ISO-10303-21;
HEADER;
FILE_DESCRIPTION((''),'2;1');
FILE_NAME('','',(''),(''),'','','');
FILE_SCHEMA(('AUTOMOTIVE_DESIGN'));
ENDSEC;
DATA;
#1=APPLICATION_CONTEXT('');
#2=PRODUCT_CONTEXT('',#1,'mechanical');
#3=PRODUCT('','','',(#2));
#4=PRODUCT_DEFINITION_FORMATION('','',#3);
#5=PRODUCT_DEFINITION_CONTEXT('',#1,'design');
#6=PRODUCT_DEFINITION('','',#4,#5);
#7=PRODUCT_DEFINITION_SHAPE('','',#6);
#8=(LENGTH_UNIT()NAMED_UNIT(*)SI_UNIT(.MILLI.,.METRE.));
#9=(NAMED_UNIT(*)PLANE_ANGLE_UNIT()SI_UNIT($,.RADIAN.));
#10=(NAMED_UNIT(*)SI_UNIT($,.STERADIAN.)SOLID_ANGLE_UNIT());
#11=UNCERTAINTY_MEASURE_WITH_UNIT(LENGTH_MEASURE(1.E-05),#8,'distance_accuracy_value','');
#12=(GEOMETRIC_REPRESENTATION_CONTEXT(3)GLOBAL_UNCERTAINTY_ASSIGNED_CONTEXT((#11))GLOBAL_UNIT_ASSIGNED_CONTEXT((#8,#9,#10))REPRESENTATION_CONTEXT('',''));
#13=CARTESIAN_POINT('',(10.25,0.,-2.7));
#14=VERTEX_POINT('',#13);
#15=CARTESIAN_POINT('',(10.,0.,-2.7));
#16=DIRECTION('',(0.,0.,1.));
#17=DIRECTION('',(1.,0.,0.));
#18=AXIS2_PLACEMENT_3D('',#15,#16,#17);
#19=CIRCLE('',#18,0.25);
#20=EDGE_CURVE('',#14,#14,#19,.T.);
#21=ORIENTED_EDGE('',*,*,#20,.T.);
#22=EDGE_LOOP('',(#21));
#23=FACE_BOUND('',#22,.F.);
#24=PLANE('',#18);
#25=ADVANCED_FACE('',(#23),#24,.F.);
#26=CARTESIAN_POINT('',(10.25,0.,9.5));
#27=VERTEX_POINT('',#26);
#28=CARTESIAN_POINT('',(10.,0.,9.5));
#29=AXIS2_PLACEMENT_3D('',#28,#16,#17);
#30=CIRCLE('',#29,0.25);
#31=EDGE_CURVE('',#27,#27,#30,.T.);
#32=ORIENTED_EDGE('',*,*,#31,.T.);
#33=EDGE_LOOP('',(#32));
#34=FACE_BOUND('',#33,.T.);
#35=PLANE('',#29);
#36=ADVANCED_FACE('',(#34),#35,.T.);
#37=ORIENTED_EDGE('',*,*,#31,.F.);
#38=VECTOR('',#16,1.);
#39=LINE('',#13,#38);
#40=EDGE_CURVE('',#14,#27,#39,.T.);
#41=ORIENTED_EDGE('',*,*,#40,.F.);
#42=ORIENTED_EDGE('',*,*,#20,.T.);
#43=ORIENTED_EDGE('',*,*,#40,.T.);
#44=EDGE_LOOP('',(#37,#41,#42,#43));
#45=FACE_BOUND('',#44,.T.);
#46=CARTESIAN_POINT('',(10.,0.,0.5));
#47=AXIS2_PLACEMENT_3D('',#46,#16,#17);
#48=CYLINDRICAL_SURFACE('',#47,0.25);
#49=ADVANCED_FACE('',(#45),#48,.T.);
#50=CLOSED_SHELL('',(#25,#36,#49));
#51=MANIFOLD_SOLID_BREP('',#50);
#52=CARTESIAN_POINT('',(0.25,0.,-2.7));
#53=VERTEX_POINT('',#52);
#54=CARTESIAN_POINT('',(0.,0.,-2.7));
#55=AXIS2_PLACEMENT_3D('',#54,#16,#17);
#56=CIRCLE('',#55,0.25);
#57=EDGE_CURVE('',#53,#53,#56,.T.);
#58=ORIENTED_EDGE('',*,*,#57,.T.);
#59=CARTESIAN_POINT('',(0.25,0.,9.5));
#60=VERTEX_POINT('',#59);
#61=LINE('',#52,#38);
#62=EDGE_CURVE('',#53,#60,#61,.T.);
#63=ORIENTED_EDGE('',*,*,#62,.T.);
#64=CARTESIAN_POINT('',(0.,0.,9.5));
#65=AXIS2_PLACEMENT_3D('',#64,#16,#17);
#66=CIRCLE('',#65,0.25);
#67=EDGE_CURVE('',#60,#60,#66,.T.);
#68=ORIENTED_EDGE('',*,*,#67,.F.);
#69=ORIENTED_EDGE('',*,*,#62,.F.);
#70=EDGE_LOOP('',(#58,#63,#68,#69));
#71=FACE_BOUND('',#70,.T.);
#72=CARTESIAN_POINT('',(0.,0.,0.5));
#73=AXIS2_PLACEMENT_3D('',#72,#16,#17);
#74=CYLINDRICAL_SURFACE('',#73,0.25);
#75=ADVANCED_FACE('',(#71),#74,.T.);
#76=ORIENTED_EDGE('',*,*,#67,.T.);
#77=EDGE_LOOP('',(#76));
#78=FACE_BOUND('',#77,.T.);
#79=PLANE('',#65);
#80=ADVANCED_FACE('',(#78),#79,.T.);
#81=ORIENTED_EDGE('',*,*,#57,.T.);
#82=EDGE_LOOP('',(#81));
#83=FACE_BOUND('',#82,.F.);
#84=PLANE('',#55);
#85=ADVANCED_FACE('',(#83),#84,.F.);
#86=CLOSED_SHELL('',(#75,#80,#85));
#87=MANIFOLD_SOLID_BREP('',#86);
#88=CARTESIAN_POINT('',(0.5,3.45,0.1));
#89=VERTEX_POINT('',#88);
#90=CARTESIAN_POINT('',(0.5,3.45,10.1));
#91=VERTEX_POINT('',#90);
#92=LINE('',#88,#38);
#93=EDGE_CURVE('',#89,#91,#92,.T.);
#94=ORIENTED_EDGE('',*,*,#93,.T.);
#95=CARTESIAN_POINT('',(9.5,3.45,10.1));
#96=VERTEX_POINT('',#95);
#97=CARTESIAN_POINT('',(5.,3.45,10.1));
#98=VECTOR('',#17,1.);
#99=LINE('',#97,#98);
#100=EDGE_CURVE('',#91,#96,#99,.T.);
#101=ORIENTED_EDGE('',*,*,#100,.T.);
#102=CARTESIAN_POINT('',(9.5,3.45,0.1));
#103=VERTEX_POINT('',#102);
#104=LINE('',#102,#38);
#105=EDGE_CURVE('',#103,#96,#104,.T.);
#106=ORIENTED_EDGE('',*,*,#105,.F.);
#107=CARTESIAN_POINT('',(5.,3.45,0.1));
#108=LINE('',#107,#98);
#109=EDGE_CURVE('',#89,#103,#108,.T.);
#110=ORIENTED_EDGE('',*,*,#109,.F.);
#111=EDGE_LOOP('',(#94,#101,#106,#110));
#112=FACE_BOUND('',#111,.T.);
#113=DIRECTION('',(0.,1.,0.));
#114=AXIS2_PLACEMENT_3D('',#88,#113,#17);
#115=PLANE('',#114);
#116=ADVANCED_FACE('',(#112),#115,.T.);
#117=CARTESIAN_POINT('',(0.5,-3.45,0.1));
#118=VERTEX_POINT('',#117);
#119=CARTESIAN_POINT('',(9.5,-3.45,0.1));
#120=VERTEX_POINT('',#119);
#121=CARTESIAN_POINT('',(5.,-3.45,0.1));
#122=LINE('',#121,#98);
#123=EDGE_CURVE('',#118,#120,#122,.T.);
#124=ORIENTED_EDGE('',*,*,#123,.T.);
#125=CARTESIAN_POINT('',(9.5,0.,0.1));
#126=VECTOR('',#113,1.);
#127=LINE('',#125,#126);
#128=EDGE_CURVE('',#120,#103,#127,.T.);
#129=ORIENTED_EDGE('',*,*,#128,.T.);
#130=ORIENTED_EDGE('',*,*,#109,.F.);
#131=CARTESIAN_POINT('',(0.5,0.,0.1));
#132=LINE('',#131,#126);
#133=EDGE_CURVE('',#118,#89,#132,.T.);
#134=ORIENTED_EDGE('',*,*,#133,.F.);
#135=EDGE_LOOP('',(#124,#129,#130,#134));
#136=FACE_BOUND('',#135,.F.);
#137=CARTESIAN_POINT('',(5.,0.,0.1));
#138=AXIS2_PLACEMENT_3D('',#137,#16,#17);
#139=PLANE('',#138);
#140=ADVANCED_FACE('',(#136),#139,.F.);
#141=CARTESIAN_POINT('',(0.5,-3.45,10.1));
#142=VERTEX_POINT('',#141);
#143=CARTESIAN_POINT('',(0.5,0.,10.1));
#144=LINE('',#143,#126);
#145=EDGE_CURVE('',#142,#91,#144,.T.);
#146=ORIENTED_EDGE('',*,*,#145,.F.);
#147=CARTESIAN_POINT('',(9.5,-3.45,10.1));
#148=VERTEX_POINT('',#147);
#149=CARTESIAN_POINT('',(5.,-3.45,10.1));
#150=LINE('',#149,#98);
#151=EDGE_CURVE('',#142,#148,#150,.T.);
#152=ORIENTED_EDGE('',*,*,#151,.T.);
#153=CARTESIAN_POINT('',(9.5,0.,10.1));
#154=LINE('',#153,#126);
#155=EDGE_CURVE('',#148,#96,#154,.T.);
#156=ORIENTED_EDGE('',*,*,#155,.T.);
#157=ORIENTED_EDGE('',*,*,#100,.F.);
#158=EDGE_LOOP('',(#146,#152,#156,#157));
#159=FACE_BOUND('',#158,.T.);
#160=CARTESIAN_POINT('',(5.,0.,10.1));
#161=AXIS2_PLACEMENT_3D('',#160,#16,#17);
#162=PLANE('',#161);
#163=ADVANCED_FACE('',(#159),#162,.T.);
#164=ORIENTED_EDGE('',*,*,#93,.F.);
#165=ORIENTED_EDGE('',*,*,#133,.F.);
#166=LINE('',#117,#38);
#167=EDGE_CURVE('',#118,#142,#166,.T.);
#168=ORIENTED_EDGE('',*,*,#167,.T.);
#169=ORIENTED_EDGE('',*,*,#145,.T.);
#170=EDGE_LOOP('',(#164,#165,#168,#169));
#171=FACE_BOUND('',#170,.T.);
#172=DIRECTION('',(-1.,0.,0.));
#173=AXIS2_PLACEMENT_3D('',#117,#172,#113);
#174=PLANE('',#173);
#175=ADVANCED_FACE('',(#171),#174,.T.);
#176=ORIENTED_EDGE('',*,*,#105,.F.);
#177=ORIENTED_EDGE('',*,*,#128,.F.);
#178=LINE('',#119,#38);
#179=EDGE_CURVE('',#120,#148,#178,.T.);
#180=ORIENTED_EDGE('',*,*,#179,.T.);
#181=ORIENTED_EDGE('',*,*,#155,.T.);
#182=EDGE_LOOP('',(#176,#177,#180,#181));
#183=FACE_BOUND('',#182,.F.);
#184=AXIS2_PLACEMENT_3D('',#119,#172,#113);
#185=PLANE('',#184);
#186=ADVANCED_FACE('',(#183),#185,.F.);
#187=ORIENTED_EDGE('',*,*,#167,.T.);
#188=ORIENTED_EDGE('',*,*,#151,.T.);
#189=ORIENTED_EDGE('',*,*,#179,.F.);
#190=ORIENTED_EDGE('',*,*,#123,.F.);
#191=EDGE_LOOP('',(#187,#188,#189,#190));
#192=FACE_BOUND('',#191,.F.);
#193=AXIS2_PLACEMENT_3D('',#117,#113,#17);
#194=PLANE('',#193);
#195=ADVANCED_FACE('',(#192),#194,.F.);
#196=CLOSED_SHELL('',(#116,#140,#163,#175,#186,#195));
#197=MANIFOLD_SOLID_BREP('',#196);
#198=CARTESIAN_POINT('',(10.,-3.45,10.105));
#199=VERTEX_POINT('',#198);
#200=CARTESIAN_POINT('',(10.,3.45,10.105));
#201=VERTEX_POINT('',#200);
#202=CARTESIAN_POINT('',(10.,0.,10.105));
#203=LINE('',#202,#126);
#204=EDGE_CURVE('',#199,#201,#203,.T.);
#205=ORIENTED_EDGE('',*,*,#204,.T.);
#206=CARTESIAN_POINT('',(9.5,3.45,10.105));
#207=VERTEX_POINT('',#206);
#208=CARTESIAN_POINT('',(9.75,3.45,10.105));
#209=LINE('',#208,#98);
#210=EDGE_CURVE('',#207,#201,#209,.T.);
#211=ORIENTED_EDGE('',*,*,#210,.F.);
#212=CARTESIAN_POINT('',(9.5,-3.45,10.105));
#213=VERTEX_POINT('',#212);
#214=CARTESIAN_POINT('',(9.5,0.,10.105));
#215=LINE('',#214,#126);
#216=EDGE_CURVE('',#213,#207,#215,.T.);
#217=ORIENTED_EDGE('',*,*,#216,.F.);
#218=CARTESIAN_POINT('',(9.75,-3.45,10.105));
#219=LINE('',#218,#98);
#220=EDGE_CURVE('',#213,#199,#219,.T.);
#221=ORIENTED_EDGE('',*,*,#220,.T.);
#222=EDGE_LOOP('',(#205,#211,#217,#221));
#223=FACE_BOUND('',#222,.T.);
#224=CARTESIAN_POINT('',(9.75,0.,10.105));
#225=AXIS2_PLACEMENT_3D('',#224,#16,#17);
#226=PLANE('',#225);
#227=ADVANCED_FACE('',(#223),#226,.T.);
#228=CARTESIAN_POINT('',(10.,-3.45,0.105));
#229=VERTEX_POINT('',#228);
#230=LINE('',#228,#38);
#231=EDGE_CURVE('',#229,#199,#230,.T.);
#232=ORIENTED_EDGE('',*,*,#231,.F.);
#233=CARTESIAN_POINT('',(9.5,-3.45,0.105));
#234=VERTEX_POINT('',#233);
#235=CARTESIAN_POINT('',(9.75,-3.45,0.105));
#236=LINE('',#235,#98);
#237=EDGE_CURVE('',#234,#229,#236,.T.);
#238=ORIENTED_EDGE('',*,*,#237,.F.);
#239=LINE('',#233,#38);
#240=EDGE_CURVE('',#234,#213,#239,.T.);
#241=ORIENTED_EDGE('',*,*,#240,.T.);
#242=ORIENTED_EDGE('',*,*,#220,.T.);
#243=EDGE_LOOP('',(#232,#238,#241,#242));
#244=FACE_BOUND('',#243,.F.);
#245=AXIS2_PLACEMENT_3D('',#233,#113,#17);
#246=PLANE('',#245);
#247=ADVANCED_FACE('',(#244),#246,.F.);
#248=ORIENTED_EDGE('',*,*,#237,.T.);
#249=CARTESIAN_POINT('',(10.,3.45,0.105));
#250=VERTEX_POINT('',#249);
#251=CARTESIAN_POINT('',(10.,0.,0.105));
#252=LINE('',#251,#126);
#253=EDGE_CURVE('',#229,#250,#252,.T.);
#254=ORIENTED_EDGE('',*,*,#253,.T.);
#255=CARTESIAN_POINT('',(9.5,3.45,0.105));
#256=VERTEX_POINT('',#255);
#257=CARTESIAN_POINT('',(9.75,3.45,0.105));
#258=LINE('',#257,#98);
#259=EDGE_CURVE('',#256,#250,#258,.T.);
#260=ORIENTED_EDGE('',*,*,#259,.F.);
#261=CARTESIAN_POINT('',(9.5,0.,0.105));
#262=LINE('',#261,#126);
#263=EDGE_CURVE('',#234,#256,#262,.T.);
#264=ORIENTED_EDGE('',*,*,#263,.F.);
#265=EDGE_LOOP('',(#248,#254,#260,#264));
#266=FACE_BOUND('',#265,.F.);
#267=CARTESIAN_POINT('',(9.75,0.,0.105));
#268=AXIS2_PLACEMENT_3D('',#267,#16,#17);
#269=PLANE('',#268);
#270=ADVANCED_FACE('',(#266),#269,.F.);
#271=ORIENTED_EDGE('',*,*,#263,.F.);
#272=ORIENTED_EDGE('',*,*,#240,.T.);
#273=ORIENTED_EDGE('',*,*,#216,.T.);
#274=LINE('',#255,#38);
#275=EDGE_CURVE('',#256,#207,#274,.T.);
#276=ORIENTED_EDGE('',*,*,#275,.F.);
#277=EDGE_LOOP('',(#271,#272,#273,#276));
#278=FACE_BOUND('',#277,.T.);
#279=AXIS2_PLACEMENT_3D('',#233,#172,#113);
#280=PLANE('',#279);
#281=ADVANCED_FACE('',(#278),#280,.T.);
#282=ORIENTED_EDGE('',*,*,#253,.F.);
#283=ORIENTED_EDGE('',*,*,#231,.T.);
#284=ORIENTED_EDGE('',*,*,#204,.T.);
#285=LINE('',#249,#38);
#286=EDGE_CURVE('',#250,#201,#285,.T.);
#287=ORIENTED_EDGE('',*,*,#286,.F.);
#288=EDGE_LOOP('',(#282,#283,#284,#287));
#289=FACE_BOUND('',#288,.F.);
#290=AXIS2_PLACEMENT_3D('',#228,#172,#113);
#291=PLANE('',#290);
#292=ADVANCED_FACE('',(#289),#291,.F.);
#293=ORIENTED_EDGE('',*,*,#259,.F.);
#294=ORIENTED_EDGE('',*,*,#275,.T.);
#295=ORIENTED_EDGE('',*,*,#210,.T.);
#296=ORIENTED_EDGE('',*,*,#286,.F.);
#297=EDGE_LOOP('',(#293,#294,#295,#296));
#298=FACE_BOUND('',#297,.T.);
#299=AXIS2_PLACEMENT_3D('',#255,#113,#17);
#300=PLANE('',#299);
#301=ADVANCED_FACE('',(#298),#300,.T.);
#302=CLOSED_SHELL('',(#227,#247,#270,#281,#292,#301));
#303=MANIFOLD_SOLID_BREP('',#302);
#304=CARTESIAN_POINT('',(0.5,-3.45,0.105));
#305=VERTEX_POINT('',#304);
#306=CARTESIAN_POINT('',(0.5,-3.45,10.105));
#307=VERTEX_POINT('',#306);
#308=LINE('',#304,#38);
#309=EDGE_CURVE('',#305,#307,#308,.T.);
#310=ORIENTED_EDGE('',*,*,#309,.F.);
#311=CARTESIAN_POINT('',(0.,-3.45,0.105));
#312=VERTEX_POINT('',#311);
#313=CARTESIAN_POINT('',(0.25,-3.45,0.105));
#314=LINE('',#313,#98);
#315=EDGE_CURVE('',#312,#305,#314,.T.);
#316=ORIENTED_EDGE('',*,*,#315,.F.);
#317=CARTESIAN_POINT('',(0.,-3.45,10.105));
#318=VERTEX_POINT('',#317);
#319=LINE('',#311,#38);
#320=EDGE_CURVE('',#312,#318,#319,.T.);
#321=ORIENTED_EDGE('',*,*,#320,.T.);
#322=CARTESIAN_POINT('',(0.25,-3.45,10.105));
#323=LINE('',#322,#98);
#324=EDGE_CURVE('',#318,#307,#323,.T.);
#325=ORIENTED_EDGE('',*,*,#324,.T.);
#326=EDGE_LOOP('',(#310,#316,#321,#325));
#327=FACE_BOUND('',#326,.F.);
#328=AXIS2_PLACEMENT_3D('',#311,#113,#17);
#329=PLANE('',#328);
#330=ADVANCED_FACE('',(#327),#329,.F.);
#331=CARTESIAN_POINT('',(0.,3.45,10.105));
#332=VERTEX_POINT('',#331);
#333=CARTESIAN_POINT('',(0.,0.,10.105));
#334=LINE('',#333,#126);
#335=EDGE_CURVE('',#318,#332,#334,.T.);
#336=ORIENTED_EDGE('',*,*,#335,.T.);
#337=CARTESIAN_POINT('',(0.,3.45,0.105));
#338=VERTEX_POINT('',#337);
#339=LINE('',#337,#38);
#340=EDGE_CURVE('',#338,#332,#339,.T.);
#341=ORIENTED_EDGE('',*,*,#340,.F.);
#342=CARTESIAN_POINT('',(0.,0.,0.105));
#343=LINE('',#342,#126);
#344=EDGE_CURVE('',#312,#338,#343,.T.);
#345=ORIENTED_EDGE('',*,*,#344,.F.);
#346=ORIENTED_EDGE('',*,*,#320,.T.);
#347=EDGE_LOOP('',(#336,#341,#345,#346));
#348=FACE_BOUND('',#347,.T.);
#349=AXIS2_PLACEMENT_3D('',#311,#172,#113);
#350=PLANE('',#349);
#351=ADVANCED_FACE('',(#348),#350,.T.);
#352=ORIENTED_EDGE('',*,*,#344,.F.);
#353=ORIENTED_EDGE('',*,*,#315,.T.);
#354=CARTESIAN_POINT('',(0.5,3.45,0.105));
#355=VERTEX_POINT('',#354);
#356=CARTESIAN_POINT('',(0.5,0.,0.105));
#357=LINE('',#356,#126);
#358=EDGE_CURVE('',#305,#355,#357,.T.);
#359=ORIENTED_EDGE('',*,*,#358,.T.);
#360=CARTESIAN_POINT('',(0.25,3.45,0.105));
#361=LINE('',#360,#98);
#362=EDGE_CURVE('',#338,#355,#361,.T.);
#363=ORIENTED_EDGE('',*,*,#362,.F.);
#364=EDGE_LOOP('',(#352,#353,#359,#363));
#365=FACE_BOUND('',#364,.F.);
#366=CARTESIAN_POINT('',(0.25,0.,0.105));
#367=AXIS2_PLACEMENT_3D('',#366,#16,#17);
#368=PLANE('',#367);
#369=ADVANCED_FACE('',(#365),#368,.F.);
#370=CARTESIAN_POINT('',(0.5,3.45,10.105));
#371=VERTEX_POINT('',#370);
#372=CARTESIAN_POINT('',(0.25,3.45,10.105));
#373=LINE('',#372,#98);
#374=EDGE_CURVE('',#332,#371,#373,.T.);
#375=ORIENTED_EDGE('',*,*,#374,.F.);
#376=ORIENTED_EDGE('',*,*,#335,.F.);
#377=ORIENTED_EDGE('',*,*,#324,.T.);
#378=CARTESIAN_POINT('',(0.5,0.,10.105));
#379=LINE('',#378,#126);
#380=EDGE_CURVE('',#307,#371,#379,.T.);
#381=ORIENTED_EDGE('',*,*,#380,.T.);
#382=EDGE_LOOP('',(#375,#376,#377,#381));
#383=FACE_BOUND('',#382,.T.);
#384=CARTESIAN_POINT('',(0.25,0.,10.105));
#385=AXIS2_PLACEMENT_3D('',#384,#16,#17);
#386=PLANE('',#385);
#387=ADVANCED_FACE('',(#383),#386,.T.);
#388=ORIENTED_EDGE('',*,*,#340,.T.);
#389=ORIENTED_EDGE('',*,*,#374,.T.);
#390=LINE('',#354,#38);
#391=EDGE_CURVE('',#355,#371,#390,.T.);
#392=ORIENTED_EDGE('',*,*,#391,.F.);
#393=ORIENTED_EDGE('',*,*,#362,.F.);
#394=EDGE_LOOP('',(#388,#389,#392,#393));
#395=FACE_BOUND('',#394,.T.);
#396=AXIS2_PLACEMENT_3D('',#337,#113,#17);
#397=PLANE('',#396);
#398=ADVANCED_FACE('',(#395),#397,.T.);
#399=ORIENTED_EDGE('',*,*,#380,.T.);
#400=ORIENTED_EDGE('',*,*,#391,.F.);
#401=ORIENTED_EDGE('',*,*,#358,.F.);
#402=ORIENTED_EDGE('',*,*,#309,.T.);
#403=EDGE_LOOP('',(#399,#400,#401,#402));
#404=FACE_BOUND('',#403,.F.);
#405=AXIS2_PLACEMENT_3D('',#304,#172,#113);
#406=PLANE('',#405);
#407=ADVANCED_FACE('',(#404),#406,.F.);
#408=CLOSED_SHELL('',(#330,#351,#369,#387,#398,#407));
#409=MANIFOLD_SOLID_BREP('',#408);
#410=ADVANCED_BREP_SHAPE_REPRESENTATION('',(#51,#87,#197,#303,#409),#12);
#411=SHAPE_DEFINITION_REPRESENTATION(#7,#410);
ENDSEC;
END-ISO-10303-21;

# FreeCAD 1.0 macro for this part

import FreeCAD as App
import Part
import Sketcher

V = App.Vector


def add_polygon(sketch, points):
    """Adds a closed chain of lines whose ends are joined by coincident constraints."""
    first, n = sketch.GeometryCount, len(points)
    for a, b in zip(points, points[1:] + points[:1]):
        sketch.addGeometry(Part.LineSegment(App.Vector(*a, 0), App.Vector(*b, 0)), False)
    for i in range(n):
        sketch.addConstraint(Sketcher.Constraint("Coincident", first + i, 2, first + (i + 1) % n, 1))

doc = App.newDocument("Part")
body = doc.addObject("PartDesign::Body", "Body")

sketch1 = doc.addObject("Sketcher::SketchObject", "Sketch")
body.addObject(sketch1)
sketch1.AttachmentSupport = (doc.XY_Plane, [""])
sketch1.MapMode = "FlatFace"
sketch1.AttachmentOffset = App.Placement(V(0, 0, 0.1), App.Rotation())
add_polygon(sketch1, [(0, 3), (0, -3), (10, -3), (10, 3)])
sketch1.addConstraint([
    Sketcher.Constraint("Vertical", 0),
    Sketcher.Constraint("Horizontal", 1),
    Sketcher.Constraint("Vertical", 2),
    Sketcher.Constraint("Horizontal", 3),
    Sketcher.Constraint("DistanceX", 1, 1, 1, 2, 9.0),
    Sketcher.Constraint("DistanceY", 0, 2, 0, 1, 6.9),
    Sketcher.Constraint("DistanceX", -1, 1, 0, 2, 0.5),
    Sketcher.Constraint("DistanceY", 0, 2, -1, 1, 3.45),
])
pad1 = doc.addObject("PartDesign::Pad", "Pad")
body.addObject(pad1)
pad1.Profile = sketch1
pad1.Length = 10
body2 = doc.addObject("PartDesign::Body", "Body001")
body2.AllowCompound = True

sketch2 = doc.addObject("Sketcher::SketchObject", "Sketch001")
body2.addObject(sketch2)
sketch2.AttachmentSupport = (doc.getObject("XY_Plane001"), [""])
sketch2.MapMode = "FlatFace"
sketch2.AttachmentOffset = App.Placement(V(0, 0, 0.5), App.Rotation())
sketch2.addGeometry([
    Part.Circle(V(0, 0, 0), V(0, 0, 1), 0.25),
    Part.Circle(V(10, 0, 0), V(0, 0, 1), 0.25),
], False)
sketch2.addConstraint([
    Sketcher.Constraint("Coincident", 0, 3, -1, 1),
    Sketcher.Constraint("Equal", 0, 1),
    Sketcher.Constraint("PointOnObject", 1, 3, -1),
    Sketcher.Constraint("Diameter", 0, 0.5),
    Sketcher.Constraint("DistanceX", -1, 1, 1, 3, 10.0),
])
pad2 = doc.addObject("PartDesign::Pad", "Pad001")
body2.addObject(pad2)
pad2.Profile = sketch2
pad2.Type = "TwoLengths"
pad2.Length = 9
pad2.Length2 = 3.2
body3 = doc.addObject("PartDesign::Body", "Body002")
body3.AllowCompound = True

sketch3 = doc.addObject("Sketcher::SketchObject", "Sketch002")
body3.addObject(sketch3)
sketch3.AttachmentSupport = (doc.getObject("XY_Plane002"), [""])
sketch3.MapMode = "FlatFace"
sketch3.AttachmentOffset = App.Placement(V(0, 0, 0.105), App.Rotation())
add_polygon(sketch3, [(0, 3.5), (0, -3.5), (0.5, -3.5), (0.5, 3.5)])
add_polygon(sketch3, [(9.5, 3.5), (9.5, -3.5), (10, -3.5), (10, 3.5)])
sketch3.addConstraint([
    Sketcher.Constraint("Vertical", 0),
    Sketcher.Constraint("Horizontal", 1),
    Sketcher.Constraint("Vertical", 2),
    Sketcher.Constraint("Horizontal", 3),
    Sketcher.Constraint("Vertical", 4),
    Sketcher.Constraint("Horizontal", 5),
    Sketcher.Constraint("Vertical", 6),
    Sketcher.Constraint("Horizontal", 7),
    Sketcher.Constraint("Symmetric", 0, 2, 3, 2, -1, 1),
    Sketcher.Constraint("Horizontal", 1, 2, 4, 2),
    Sketcher.Constraint("Horizontal", 3, 2, 6, 2),
    Sketcher.Constraint("Equal", 3, 5),
    Sketcher.Constraint("DistanceX", 1, 1, 1, 2, 0.5),
    Sketcher.Constraint("DistanceY", 0, 2, 0, 1, 6.9),
    Sketcher.Constraint("DistanceX", -1, 1, 5, 2, 10.0),
])
pad3 = doc.addObject("PartDesign::Pad", "Pad002")
body3.addObject(pad3)
pad3.Profile = sketch3
pad3.Length = 10

doc.recompute()
